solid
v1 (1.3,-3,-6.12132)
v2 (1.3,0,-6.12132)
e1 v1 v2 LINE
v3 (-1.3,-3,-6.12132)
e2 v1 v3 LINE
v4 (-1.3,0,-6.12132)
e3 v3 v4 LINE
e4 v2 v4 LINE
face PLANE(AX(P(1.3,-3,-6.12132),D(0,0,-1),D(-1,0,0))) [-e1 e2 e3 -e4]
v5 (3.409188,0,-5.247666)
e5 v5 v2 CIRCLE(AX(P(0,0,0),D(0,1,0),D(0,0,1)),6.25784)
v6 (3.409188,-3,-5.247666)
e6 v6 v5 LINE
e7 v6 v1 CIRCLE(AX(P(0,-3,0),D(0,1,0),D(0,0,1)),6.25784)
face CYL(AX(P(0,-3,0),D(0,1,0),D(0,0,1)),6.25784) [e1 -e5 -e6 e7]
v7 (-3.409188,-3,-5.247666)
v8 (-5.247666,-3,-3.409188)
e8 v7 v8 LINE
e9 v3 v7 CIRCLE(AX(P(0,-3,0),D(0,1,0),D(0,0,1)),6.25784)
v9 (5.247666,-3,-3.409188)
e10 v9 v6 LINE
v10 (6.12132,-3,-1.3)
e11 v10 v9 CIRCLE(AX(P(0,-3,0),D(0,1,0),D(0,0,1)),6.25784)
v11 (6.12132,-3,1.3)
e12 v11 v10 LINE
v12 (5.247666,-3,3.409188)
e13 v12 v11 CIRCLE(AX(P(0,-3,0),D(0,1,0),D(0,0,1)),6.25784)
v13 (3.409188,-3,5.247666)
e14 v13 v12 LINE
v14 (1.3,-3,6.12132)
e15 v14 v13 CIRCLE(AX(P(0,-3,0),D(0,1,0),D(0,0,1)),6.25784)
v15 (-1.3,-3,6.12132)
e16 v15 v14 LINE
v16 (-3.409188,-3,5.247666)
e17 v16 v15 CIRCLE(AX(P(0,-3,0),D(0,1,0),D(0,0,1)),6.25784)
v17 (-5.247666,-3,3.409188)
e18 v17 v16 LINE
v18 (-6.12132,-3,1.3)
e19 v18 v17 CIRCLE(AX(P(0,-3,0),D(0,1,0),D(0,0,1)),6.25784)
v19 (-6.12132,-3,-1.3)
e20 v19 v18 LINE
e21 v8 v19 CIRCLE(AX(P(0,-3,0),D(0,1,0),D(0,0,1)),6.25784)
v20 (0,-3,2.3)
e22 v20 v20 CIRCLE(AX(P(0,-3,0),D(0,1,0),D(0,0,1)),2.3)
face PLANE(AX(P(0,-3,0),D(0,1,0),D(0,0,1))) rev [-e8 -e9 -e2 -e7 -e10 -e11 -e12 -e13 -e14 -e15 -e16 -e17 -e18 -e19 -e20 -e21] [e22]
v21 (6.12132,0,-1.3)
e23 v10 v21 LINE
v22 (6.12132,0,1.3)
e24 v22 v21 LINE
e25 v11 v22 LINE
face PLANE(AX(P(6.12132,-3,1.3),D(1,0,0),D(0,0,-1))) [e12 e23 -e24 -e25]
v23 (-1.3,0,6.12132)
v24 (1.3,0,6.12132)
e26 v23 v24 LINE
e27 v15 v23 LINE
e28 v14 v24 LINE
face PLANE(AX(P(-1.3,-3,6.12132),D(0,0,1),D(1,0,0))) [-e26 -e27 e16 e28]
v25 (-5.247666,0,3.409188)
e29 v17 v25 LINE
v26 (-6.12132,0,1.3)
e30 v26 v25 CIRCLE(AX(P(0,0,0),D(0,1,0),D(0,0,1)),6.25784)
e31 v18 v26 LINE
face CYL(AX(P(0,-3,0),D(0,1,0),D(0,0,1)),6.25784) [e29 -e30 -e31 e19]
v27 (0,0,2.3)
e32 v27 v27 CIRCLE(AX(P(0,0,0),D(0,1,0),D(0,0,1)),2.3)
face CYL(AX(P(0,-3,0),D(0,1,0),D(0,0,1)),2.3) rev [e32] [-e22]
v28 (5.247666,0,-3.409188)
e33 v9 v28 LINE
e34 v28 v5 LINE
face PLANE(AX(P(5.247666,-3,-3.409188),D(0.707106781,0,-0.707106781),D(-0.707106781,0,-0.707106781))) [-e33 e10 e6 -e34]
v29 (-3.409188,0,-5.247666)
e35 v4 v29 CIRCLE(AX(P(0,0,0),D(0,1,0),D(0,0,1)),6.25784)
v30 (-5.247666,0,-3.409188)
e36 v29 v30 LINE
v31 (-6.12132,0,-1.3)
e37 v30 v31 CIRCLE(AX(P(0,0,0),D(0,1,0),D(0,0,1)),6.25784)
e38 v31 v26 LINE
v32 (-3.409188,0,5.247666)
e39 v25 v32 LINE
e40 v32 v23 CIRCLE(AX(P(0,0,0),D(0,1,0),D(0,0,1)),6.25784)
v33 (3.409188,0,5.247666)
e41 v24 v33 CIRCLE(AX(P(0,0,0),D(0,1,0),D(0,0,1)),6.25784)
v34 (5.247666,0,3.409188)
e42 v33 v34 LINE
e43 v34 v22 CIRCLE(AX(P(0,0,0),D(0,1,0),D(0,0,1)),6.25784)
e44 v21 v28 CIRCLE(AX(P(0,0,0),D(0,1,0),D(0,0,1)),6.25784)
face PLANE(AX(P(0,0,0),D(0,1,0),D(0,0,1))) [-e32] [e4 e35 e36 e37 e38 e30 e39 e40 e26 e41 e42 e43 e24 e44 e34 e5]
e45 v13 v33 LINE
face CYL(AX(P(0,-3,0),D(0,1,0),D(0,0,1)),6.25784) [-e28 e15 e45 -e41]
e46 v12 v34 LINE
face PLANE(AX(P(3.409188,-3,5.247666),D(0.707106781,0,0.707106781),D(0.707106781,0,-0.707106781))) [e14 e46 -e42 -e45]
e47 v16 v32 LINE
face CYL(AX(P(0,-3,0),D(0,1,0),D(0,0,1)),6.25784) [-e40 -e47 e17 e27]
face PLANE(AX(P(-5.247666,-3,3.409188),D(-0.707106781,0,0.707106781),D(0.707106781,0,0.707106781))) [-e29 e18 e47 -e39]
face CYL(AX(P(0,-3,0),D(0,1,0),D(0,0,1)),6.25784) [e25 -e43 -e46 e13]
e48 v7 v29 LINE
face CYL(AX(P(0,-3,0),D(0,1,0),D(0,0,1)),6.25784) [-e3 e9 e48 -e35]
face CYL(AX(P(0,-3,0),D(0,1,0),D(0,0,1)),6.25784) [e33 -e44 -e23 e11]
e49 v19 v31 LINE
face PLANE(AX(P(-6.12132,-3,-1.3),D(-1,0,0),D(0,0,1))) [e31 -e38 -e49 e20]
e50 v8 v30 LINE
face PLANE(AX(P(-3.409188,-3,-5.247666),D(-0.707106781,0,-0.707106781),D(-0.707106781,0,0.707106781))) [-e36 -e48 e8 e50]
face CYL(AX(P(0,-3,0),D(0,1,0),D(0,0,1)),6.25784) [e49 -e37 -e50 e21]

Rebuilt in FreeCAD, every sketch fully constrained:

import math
import FreeCAD as App
import Part
import Sketcher

V = App.Vector
Q = App.Units.Quantity

doc = App.newDocument("Part")
body = doc.addObject("PartDesign::Body", "Body")

# Sketch on XZ plane
sketch1 = body.newObject("Sketcher::SketchObject", "Sketch")
sketch1.AttachmentSupport = (doc.getObject("XZ_Plane"), [""])
sketch1.MapMode = "FlatFace"
sketch1.addGeometry([
    Part.LineSegment(V(3.409188, 5.247666, 0), V(5.247666, 3.409188, 0)),  # 0
    Part.ArcOfCircle(Part.Circle(V(0, 0, 0), V(0, 0, 1), 6.25784), math.radians(11.989909), math.radians(33.010091)),  # 1
    Part.LineSegment(V(6.12132, 1.3, 0), V(6.12132, -1.3, 0)),  # 2
    Part.ArcOfCircle(Part.Circle(V(0, 0, 0), V(0, 0, 1), 6.25784), math.radians(-33.010091), math.radians(-11.989909)),  # 3
    Part.LineSegment(V(5.247666, -3.409188, 0), V(3.409188, -5.247666, 0)),  # 4
    Part.ArcOfCircle(Part.Circle(V(0, 0, 0), V(0, 0, 1), 6.25784), math.radians(-78.010091), math.radians(-56.989909)),  # 5
    Part.LineSegment(V(1.3, -6.12132, 0), V(-1.3, -6.12132, 0)),  # 6
    Part.ArcOfCircle(Part.Circle(V(0, 0, 0), V(0, 0, 1), 6.25784), math.radians(-123.010091), math.radians(-101.989909)),  # 7
    Part.LineSegment(V(-3.409188, -5.247666, 0), V(-5.247666, -3.409188, 0)),  # 8
    Part.ArcOfCircle(Part.Circle(V(0, 0, 0), V(0, 0, 1), 6.25784), math.radians(-168.010091), math.radians(-146.989909)),  # 9
    Part.LineSegment(V(-6.12132, -1.3, 0), V(-6.12132, 1.3, 0)),  # 10
    Part.ArcOfCircle(Part.Circle(V(0, 0, 0), V(0, 0, 1), 6.25784), math.radians(146.989909), math.radians(168.010091)),  # 11
    Part.LineSegment(V(-5.247666, 3.409188, 0), V(-3.409188, 5.247666, 0)),  # 12
    Part.ArcOfCircle(Part.Circle(V(0, 0, 0), V(0, 0, 1), 6.25784), math.radians(101.989909), math.radians(123.010091)),  # 13
    Part.LineSegment(V(-1.3, 6.12132, 0), V(1.3, 6.12132, 0)),  # 14
    Part.ArcOfCircle(Part.Circle(V(0, 0, 0), V(0, 0, 1), 6.25784), math.radians(56.989909), math.radians(78.010091)),  # 15
    Part.Circle(V(0, 0, 0), V(0, 0, 1), 2.3),  # 16
], False)
sketch1.addConstraint([
    Sketcher.Constraint("Coincident", 0, 2, 1, 2),
    Sketcher.Constraint("Coincident", 1, 1, 2, 1),
    Sketcher.Constraint("Coincident", 2, 2, 3, 2),
    Sketcher.Constraint("Coincident", 3, 1, 4, 1),
    Sketcher.Constraint("Coincident", 4, 2, 5, 2),
    Sketcher.Constraint("Coincident", 5, 1, 6, 1),
    Sketcher.Constraint("Coincident", 6, 2, 7, 2),
    Sketcher.Constraint("Coincident", 7, 1, 8, 1),
    Sketcher.Constraint("Coincident", 8, 2, 9, 2),
    Sketcher.Constraint("Coincident", 9, 1, 10, 1),
    Sketcher.Constraint("Coincident", 10, 2, 11, 2),
    Sketcher.Constraint("Coincident", 11, 1, 12, 1),
    Sketcher.Constraint("Coincident", 12, 2, 13, 2),
    Sketcher.Constraint("Coincident", 13, 1, 14, 1),
    Sketcher.Constraint("Coincident", 14, 2, 15, 2),
    Sketcher.Constraint("Coincident", 15, 1, 0, 1),
    Sketcher.Constraint("Vertical", 2),
    Sketcher.Constraint("Horizontal", 6),
    Sketcher.Constraint("Vertical", 10),
    Sketcher.Constraint("Horizontal", 14),
    Sketcher.Constraint("Coincident", 1, 3, -1, 1),
    Sketcher.Constraint("Coincident", 3, 3, -1, 1),
    Sketcher.Constraint("Coincident", 5, 3, -1, 1),
    Sketcher.Constraint("Coincident", 7, 3, -1, 1),
    Sketcher.Constraint("Coincident", 9, 3, -1, 1),
    Sketcher.Constraint("Coincident", 11, 3, -1, 1),
    Sketcher.Constraint("Coincident", 13, 3, -1, 1),
    Sketcher.Constraint("Coincident", 15, 3, -1, 1),
    Sketcher.Constraint("Coincident", 16, 3, -1, 1),
    Sketcher.Constraint("Equal", 1, 3),
    Sketcher.Constraint("Equal", 3, 5),
    Sketcher.Constraint("Equal", 5, 7),
    Sketcher.Constraint("Equal", 7, 9),
    Sketcher.Constraint("Equal", 9, 11),
    Sketcher.Constraint("Equal", 11, 13),
    Sketcher.Constraint("Equal", 13, 15),
    Sketcher.Constraint("Perpendicular", 0, 4),
    Sketcher.Constraint("Perpendicular", 4, 8),
    Sketcher.Constraint("Perpendicular", 8, 12),
    Sketcher.Constraint("Horizontal", 4, 2, 7, 1),
    Sketcher.Constraint("Horizontal", 3, 1, 8, 2),
    Sketcher.Constraint("Horizontal", 2, 2, 9, 1),
    Sketcher.Constraint("Horizontal", 0, 2, 11, 1),
    Sketcher.Constraint("Vertical", 0, 2, 3, 1),
    Sketcher.Constraint("Vertical", 6, 2, 13, 1),
    Sketcher.Constraint("Equal", 14, 2),
    Sketcher.Constraint("Diameter", 16, Q("4.6 mm")),
    Sketcher.Constraint("DistanceX", 6, 2, 6, 1, Q("2.6 mm")),
    Sketcher.Constraint("Distance", 0, Q("2.6 mm")),
    Sketcher.Constraint("Radius", 1, Q("6.25784 mm")),
])
pad1 = body.newObject("PartDesign::Pad", "Pad")
pad1.Profile = sketch1
pad1.Length = 3

doc.recompute()
